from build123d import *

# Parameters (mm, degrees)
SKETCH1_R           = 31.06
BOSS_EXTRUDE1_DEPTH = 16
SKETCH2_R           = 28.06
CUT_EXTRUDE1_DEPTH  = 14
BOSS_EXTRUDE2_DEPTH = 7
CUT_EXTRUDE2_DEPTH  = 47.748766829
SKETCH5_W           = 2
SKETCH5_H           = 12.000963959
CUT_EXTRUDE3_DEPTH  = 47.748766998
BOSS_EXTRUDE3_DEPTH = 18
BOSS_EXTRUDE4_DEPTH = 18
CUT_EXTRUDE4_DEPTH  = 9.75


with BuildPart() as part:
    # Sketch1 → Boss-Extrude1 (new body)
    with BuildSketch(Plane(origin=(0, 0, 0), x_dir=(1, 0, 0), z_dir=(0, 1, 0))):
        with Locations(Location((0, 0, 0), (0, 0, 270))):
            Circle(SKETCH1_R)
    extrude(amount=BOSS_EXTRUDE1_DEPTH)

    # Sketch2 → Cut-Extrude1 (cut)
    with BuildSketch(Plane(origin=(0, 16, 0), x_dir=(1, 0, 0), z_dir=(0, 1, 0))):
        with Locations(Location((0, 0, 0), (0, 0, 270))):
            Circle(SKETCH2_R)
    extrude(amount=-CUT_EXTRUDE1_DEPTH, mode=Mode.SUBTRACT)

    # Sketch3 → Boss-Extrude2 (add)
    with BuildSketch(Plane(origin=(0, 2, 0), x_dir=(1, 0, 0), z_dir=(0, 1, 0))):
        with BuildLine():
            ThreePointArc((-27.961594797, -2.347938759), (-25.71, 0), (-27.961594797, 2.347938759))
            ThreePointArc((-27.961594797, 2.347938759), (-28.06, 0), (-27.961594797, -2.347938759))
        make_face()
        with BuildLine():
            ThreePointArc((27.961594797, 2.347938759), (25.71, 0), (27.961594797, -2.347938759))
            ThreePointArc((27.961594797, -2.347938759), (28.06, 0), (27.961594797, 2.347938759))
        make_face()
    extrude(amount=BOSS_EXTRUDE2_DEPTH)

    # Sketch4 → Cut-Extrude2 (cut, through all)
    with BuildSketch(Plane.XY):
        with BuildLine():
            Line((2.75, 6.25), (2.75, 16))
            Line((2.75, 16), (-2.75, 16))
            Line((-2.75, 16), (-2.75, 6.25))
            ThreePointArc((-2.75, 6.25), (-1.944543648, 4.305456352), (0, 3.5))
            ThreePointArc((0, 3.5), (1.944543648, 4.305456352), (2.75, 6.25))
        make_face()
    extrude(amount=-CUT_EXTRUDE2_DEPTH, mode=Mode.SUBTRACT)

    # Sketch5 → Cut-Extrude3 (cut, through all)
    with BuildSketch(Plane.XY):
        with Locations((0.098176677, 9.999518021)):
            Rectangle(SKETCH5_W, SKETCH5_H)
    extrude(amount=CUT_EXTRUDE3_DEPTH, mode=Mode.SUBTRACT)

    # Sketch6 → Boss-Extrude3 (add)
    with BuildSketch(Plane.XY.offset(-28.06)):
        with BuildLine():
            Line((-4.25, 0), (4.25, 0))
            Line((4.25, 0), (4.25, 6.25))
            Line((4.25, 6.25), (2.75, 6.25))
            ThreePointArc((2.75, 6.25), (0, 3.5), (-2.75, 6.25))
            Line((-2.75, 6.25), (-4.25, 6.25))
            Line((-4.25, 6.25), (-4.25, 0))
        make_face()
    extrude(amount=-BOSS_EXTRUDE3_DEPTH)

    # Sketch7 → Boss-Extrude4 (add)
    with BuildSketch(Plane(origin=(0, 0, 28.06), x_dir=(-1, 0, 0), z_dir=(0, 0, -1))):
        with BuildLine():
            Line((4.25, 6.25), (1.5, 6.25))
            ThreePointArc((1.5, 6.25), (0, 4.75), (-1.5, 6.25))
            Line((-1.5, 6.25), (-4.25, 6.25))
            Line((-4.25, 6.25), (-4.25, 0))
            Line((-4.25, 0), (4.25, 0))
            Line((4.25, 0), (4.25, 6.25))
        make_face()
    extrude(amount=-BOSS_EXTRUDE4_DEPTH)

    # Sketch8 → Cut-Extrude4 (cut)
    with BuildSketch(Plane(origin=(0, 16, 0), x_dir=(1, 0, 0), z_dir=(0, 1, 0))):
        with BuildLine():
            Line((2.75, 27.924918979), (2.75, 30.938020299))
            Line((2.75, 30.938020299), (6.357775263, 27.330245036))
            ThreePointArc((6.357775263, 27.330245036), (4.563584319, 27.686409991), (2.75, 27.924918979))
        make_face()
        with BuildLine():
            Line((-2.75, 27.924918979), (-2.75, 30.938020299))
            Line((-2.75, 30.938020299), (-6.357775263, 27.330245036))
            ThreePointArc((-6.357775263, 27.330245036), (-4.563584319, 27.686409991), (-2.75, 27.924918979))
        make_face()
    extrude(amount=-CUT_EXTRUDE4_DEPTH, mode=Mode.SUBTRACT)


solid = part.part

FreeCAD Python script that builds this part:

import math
import FreeCAD as App
import Part
import Sketcher

doc = App.newDocument("Part")
body = doc.addObject("PartDesign::Body", "Body")

sketch1 = body.newObject("Sketcher::SketchObject", "Sketch")
sketch1.AttachmentSupport = (doc.getObject("XZ_Plane"), [""])
sketch1.MapMode = "FlatFace"
sketch1.addGeometry(Part.Circle(App.Vector(0, 0, 0), App.Vector(0, 0, 1), 31.06), False)
sketch1.addConstraint([
    Sketcher.Constraint("Coincident", 0, 3, -1, 1),
    Sketcher.Constraint("Diameter", 0, 62.12),
])
pad1 = body.newObject("PartDesign::Pad", "Pad")
pad1.Profile = sketch1
pad1.Length = 16
pad1.Reversed = True

sketch2 = body.newObject("Sketcher::SketchObject", "Sketch001")
sketch2.AttachmentSupport = (doc.getObject("XZ_Plane"), [""])
sketch2.MapMode = "FlatFace"
sketch2.AttachmentOffset = App.Placement(App.Vector(0, 0, -16), App.Rotation())
sketch2.addGeometry(Part.Circle(App.Vector(0, 0, 0), App.Vector(0, 0, 1), 28.06), False)
sketch2.addConstraint([
    Sketcher.Constraint("Coincident", 0, 3, -1, 1),
    Sketcher.Constraint("Diameter", 0, 56.12),
])
pocket1 = body.newObject("PartDesign::Pocket", "Pocket")
pocket1.Profile = sketch2
pocket1.Length = 14
pocket1.Reversed = True

sketch3 = body.newObject("Sketcher::SketchObject", "Sketch002")
sketch3.AttachmentSupport = (doc.getObject("XZ_Plane"), [""])
sketch3.MapMode = "FlatFace"
sketch3.AttachmentOffset = App.Placement(App.Vector(0, 0, -2), App.Rotation())
sketch3.addGeometry([
    Part.ArcOfCircle(Part.Circle(App.Vector(-28.06, 0, 0), App.Vector(0, 0, 1), 2.35), math.radians(-87.600063), math.radians(87.600063)),
    Part.ArcOfCircle(Part.Circle(App.Vector(0, 0, 0), App.Vector(0, 0, 1), 28.06), math.radians(175.200126), math.radians(184.799874)),
    Part.ArcOfCircle(Part.Circle(App.Vector(28.06, 0, 0), App.Vector(0, 0, 1), 2.35), math.radians(92.399937), math.radians(267.600063)),
    Part.ArcOfCircle(Part.Circle(App.Vector(0, 0, 0), App.Vector(0, 0, 1), 28.06), math.radians(-4.799874), math.radians(4.799874)),
], False)
sketch3.addConstraint([
    Sketcher.Constraint("Coincident", 0, 1, 1, 2),
    Sketcher.Constraint("Coincident", 1, 1, 0, 2),
    Sketcher.Constraint("Coincident", 2, 1, 3, 2),
    Sketcher.Constraint("Coincident", 3, 1, 2, 2),
    Sketcher.Constraint("Coincident", 1, 3, -1, 1),
    Sketcher.Constraint("Coincident", 3, 3, -1, 1),
    Sketcher.Constraint("Equal", 0, 2),
    Sketcher.Constraint("Equal", 1, 3),
    Sketcher.Constraint("Symmetric", 0, 3, 2, 3, -1, 1),
    Sketcher.Constraint("PointOnObject", 0, 3, -1),
    Sketcher.Constraint("Radius", 0, 2.35),
    Sketcher.Constraint("Radius", 1, 28.06),
    Sketcher.Constraint("DistanceX", 0, 3, -1, 1, 28.06),
])
pad2 = body.newObject("PartDesign::Pad", "Pad001")
pad2.Profile = sketch3
pad2.Length = 7
pad2.Reversed = True

sketch4 = body.newObject("Sketcher::SketchObject", "Sketch003")
sketch4.AttachmentSupport = (doc.getObject("XY_Plane"), [""])
sketch4.MapMode = "FlatFace"
sketch4.addGeometry([
    Part.LineSegment(App.Vector(2.75, 6.25, 0), App.Vector(2.75, 16, 0)),
    Part.LineSegment(App.Vector(2.75, 16, 0), App.Vector(-2.75, 16, 0)),
    Part.LineSegment(App.Vector(-2.75, 16, 0), App.Vector(-2.75, 6.25, 0)),
    Part.ArcOfCircle(Part.Circle(App.Vector(0, 6.25, 0), App.Vector(0, 0, 1), 2.75), math.radians(-180), math.radians(-90)),
    Part.ArcOfCircle(Part.Circle(App.Vector(0, 6.25, 0), App.Vector(0, 0, 1), 2.75), math.radians(-90), math.radians(0)),
], False)
sketch4.addConstraint([
    Sketcher.Constraint("Coincident", 0, 2, 1, 1),
    Sketcher.Constraint("Coincident", 1, 2, 2, 1),
    Sketcher.Constraint("Tangent", 2, 2, 3, 1),
    Sketcher.Constraint("Tangent", 3, 2, 4, 1),
    Sketcher.Constraint("Tangent", 4, 2, 0, 1),
    Sketcher.Constraint("Vertical", 0),
    Sketcher.Constraint("Horizontal", 1),
    Sketcher.Constraint("Vertical", 2),
    Sketcher.Constraint("Equal", 3, 4),
    Sketcher.Constraint("PointOnObject", 3, 3, -2),
    Sketcher.Constraint("PointOnObject", 3, 2, -2),
    Sketcher.Constraint("Radius", 3, 2.75),
    Sketcher.Constraint("DistanceY", -1, 1, 0, 2, 16.0),
    Sketcher.Constraint("DistanceY", 0, 1, 0, 2, 9.75),
])
pocket2 = body.newObject("PartDesign::Pocket", "Pocket001")
pocket2.Profile = sketch4
pocket2.Type = "ThroughAll"

sketch5 = body.newObject("Sketcher::SketchObject", "Sketch004")
sketch5.AttachmentSupport = (doc.getObject("XY_Plane"), [""])
sketch5.MapMode = "FlatFace"
sketch5.addGeometry([
    Part.LineSegment(App.Vector(-0.901823, 16, 0), App.Vector(-0.901823, 3.999036, 0)),
    Part.LineSegment(App.Vector(-0.901823, 3.999036, 0), App.Vector(1.098177, 3.999036, 0)),
    Part.LineSegment(App.Vector(1.098177, 3.999036, 0), App.Vector(1.098177, 16, 0)),
    Part.LineSegment(App.Vector(1.098177, 16, 0), App.Vector(-0.901823, 16, 0)),
], False)
sketch5.addConstraint([
    Sketcher.Constraint("Coincident", 0, 2, 1, 1),
    Sketcher.Constraint("Coincident", 1, 2, 2, 1),
    Sketcher.Constraint("Coincident", 2, 2, 3, 1),
    Sketcher.Constraint("Coincident", 3, 2, 0, 1),
    Sketcher.Constraint("Vertical", 0),
    Sketcher.Constraint("Horizontal", 1),
    Sketcher.Constraint("Vertical", 2),
    Sketcher.Constraint("Horizontal", 3),
    Sketcher.Constraint("DistanceX", 1, 1, 1, 2, 2.0),
    Sketcher.Constraint("DistanceY", -1, 1, 2, 2, 16.0),
    Sketcher.Constraint("DistanceY", 0, 2, 0, 1, 12.000964),
    Sketcher.Constraint("DistanceX", 0, 2, -1, 1, 0.901823),
])
pocket3 = body.newObject("PartDesign::Pocket", "Pocket002")
pocket3.Profile = sketch5
pocket3.Type = "ThroughAll"
pocket3.Reversed = True

sketch6 = body.newObject("Sketcher::SketchObject", "Sketch005")
sketch6.AttachmentSupport = (doc.getObject("XY_Plane"), [""])
sketch6.MapMode = "FlatFace"
sketch6.AttachmentOffset = App.Placement(App.Vector(0, 0, -28.06), App.Rotation())
sketch6.addGeometry([
    Part.LineSegment(App.Vector(-4.25, 0, 0), App.Vector(4.25, 0, 0)),
    Part.LineSegment(App.Vector(4.25, 0, 0), App.Vector(4.25, 6.25, 0)),
    Part.LineSegment(App.Vector(4.25, 6.25, 0), App.Vector(2.75, 6.25, 0)),
    Part.ArcOfCircle(Part.Circle(App.Vector(0, 6.25, 0), App.Vector(0, 0, 1), 2.75), math.radians(180), math.radians(360)),
    Part.LineSegment(App.Vector(-2.75, 6.25, 0), App.Vector(-4.25, 6.25, 0)),
    Part.LineSegment(App.Vector(-4.25, 6.25, 0), App.Vector(-4.25, 0, 0)),
], False)
sketch6.addConstraint([
    Sketcher.Constraint("Coincident", 0, 2, 1, 1),
    Sketcher.Constraint("Coincident", 1, 2, 2, 1),
    Sketcher.Constraint("Coincident", 2, 2, 3, 2),
    Sketcher.Constraint("Coincident", 3, 1, 4, 1),
    Sketcher.Constraint("Coincident", 4, 2, 5, 1),
    Sketcher.Constraint("Coincident", 5, 2, 0, 1),
    Sketcher.Constraint("Horizontal", 0),
    Sketcher.Constraint("Vertical", 1),
    Sketcher.Constraint("Horizontal", 2),
    Sketcher.Constraint("Horizontal", 4),
    Sketcher.Constraint("Vertical", 5),
    Sketcher.Constraint("Symmetric", 0, 2, 5, 2, -1, 1),
    Sketcher.Constraint("Symmetric", 2, 2, 3, 1, -2),
    Sketcher.Constraint("Horizontal", 3, 3, 1, 2),
    Sketcher.Constraint("Radius", 3, 2.75),
    Sketcher.Constraint("DistanceX", 0, 1, 0, 2, 8.5),
    Sketcher.Constraint("DistanceY", 1, 1, 1, 2, 6.25),
])
pad3 = body.newObject("PartDesign::Pad", "Pad002")
pad3.Profile = sketch6
pad3.Length = 18
pad3.Reversed = True

sketch7 = body.newObject("Sketcher::SketchObject", "Sketch006")
sketch7.AttachmentSupport = (doc.getObject("XY_Plane"), [""])
sketch7.MapMode = "FlatFace"
sketch7.AttachmentOffset = App.Placement(App.Vector(0, 0, 28.06), App.Rotation())
sketch7.addGeometry([
    Part.LineSegment(App.Vector(-4.25, 6.25, 0), App.Vector(-1.5, 6.25, 0)),
    Part.ArcOfCircle(Part.Circle(App.Vector(0, 6.25, 0), App.Vector(0, 0, 1), 1.5), math.radians(180), math.radians(360)),
    Part.LineSegment(App.Vector(1.5, 6.25, 0), App.Vector(4.25, 6.25, 0)),
    Part.LineSegment(App.Vector(4.25, 6.25, 0), App.Vector(4.25, 0, 0)),
    Part.LineSegment(App.Vector(4.25, 0, 0), App.Vector(-4.25, 0, 0)),
    Part.LineSegment(App.Vector(-4.25, 0, 0), App.Vector(-4.25, 6.25, 0)),
], False)
sketch7.addConstraint([
    Sketcher.Constraint("Coincident", 0, 2, 1, 1),
    Sketcher.Constraint("Coincident", 1, 2, 2, 1),
    Sketcher.Constraint("Coincident", 2, 2, 3, 1),
    Sketcher.Constraint("Coincident", 3, 2, 4, 1),
    Sketcher.Constraint("Coincident", 4, 2, 5, 1),
    Sketcher.Constraint("Coincident", 5, 2, 0, 1),
    Sketcher.Constraint("Horizontal", 0),
    Sketcher.Constraint("Horizontal", 2),
    Sketcher.Constraint("Vertical", 3),
    Sketcher.Constraint("Horizontal", 4),
    Sketcher.Constraint("Vertical", 5),
    Sketcher.Constraint("Symmetric", 3, 2, 4, 2, -1, 1),
    Sketcher.Constraint("Symmetric", 0, 2, 1, 2, -2),
    Sketcher.Constraint("Horizontal", 1, 3, 0, 2),
    Sketcher.Constraint("Radius", 1, 1.5),
    Sketcher.Constraint("DistanceX", 4, 2, 4, 1, 8.5),
    Sketcher.Constraint("DistanceY", 3, 2, 3, 1, 6.25),
])
pad4 = body.newObject("PartDesign::Pad", "Pad003")
pad4.Profile = sketch7
pad4.Length = 18

sketch8 = body.newObject("Sketcher::SketchObject", "Sketch007")
sketch8.AttachmentSupport = (doc.getObject("XZ_Plane"), [""])
sketch8.MapMode = "FlatFace"
sketch8.AttachmentOffset = App.Placement(App.Vector(0, 0, -16), App.Rotation())
sketch8.addGeometry([
    Part.LineSegment(App.Vector(2.75, -30.93802, 0), App.Vector(2.75, -27.924919, 0)),
    Part.ArcOfCircle(Part.Circle(App.Vector(0, 0, 0), App.Vector(0, 0, 1), 28.06), math.radians(-84.375741), math.radians(-76.90432)),
    Part.LineSegment(App.Vector(6.357775, -27.330245, 0), App.Vector(2.75, -30.93802, 0)),
    Part.LineSegment(App.Vector(-2.75, -27.924919, 0), App.Vector(-2.75, -30.93802, 0)),
    Part.LineSegment(App.Vector(-2.75, -30.93802, 0), App.Vector(-6.357775, -27.330245, 0)),
    Part.ArcOfCircle(Part.Circle(App.Vector(0, 0, 0), App.Vector(0, 0, 1), 28.06), math.radians(-103.09568), math.radians(-95.624259)),
], False)
sketch8.addConstraint([
    Sketcher.Constraint("Coincident", 0, 2, 1, 1),
    Sketcher.Constraint("Coincident", 1, 2, 2, 1),
    Sketcher.Constraint("Coincident", 2, 2, 0, 1),
    Sketcher.Constraint("Coincident", 3, 2, 4, 1),
    Sketcher.Constraint("Coincident", 4, 2, 5, 1),
    Sketcher.Constraint("Coincident", 5, 2, 3, 1),
    Sketcher.Constraint("Vertical", 0),
    Sketcher.Constraint("Vertical", 3),
    Sketcher.Constraint("Coincident", 1, 3, -1, 1),
    Sketcher.Constraint("Coincident", 5, 3, -1, 1),
    Sketcher.Constraint("Equal", 1, 5),
    Sketcher.Constraint("Symmetric", 2, 2, 3, 2, -2),
    Sketcher.Constraint("Perpendicular", 2, 4),
    Sketcher.Constraint("Horizontal", 1, 2, 4, 2),
    Sketcher.Constraint("Radius", 1, 28.06),
    Sketcher.Constraint("DistanceX", 3, 2, 2, 2, 5.5),
    Sketcher.Constraint("DistanceY", 0, 1, 0, 2, 3.013101),
])
pocket4 = body.newObject("PartDesign::Pocket", "Pocket003")
pocket4.Profile = sketch8
pocket4.Length = 9.75
pocket4.Reversed = True

doc.recompute()
